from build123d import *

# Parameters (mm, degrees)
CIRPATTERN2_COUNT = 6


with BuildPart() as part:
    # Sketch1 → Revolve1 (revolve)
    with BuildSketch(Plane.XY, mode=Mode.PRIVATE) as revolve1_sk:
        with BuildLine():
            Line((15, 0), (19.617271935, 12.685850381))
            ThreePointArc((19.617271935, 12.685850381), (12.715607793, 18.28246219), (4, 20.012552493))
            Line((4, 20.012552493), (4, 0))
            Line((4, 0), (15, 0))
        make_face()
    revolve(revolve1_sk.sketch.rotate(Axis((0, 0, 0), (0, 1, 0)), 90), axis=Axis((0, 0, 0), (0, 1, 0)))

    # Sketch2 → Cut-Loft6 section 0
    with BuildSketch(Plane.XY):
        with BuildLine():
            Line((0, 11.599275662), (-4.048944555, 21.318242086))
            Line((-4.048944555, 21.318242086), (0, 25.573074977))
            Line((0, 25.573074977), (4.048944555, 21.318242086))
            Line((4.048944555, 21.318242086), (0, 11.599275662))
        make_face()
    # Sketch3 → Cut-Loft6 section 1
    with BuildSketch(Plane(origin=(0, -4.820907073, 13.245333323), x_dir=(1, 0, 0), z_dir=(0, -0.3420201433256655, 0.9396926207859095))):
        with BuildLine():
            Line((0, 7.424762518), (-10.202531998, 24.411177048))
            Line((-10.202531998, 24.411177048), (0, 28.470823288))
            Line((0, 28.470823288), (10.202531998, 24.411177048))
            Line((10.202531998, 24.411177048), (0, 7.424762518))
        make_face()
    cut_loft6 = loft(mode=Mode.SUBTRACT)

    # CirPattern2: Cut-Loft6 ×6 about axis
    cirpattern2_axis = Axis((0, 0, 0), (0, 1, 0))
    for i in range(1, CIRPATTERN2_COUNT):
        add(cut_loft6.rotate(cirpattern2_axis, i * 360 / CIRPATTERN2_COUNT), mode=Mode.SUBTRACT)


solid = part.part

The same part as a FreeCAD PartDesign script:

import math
import FreeCAD as App
import Part
import Sketcher
from FreeCAD import Vector
Q = App.Units.Quantity

doc = App.newDocument("Part")
body = doc.addObject("PartDesign::Body", "Body")

# Sketch on XY plane
sketch1 = doc.addObject("Sketcher::SketchObject", "Sketch")
body.addObject(sketch1)
sketch1.AttachmentSupport = (doc.XY_Plane, [""])
sketch1.MapMode = "FlatFace"
sketch1.addGeometry(Part.LineSegment(Vector(15, 0, 0), Vector(20, 13, 0)), False)
sketch1.addGeometry(Part.ArcOfCircle(Part.Circle(Vector(5, 2, 0), Vector(0, 0, 1), 18), math.radians(37), math.radians(93)), False)
sketch1.addGeometry(Part.LineSegment(Vector(4, 20, 0), Vector(4, 0, 0)), False)
sketch1.addGeometry(Part.LineSegment(Vector(4, 0, 0), Vector(15, 0, 0)), False)
sketch1.addConstraint(Sketcher.Constraint("Coincident", 0, 2, 1, 1))
sketch1.addConstraint(Sketcher.Constraint("Coincident", 1, 2, 2, 1))
sketch1.addConstraint(Sketcher.Constraint("Coincident", 2, 2, 3, 1))
sketch1.addConstraint(Sketcher.Constraint("Coincident", 3, 2, 0, 1))
sketch1.addConstraint(Sketcher.Constraint("Vertical", 2))
sketch1.addConstraint(Sketcher.Constraint("Horizontal", 3))
sketch1.addConstraint(Sketcher.Constraint("PointOnObject", 2, 2, -1))
sketch1.addConstraint(Sketcher.Constraint("DistanceX", 3, 1, 3, 2, 11.0))
sketch1.addConstraint(Sketcher.Constraint("Angle", 0, Q("70 deg")))
sketch1.addConstraint(Sketcher.Constraint("DistanceX", -1, 1, 1, 2, 4.0))
sketch1.addConstraint(Sketcher.Constraint("Distance", 0, 13.5))
sketch1.addConstraint(Sketcher.Constraint("Radius", 1, 18.486848))
sketch1.addConstraint(Sketcher.Constraint("DistanceX", -1, 1, 1, 3, 4.863799))
revolution = doc.addObject("PartDesign::Revolution", "Revolution")
body.addObject(revolution)
revolution.Profile = sketch1
revolution.ReferenceAxis = (sketch1, ["V_Axis"])
revolution.Angle = 360

# Sketch on XY plane
sketch2 = doc.addObject("Sketcher::SketchObject", "Sketch001")
body.addObject(sketch2)
sketch2.AttachmentSupport = (doc.XY_Plane, [""])
sketch2.MapMode = "FlatFace"
sketch2.addGeometry(Part.LineSegment(Vector(-4, 21, 0), Vector(0, 12, 0)), False)
sketch2.addGeometry(Part.LineSegment(Vector(0, 12, 0), Vector(4, 21, 0)), False)
sketch2.addGeometry(Part.LineSegment(Vector(4, 21, 0), Vector(0, 26, 0)), False)
sketch2.addGeometry(Part.LineSegment(Vector(0, 26, 0), Vector(-4, 21, 0)), False)
sketch2.addConstraint(Sketcher.Constraint("Coincident", 0, 2, 1, 1))
sketch2.addConstraint(Sketcher.Constraint("Coincident", 1, 2, 2, 1))
sketch2.addConstraint(Sketcher.Constraint("Coincident", 2, 2, 3, 1))
sketch2.addConstraint(Sketcher.Constraint("Coincident", 3, 2, 0, 1))
sketch2.addConstraint(Sketcher.Constraint("Symmetric", 1, 2, 3, 2, -2))
sketch2.addConstraint(Sketcher.Constraint("PointOnObject", 0, 2, -2))
sketch2.addConstraint(Sketcher.Constraint("PointOnObject", 2, 2, -2))
sketch2.addConstraint(Sketcher.Constraint("DistanceY", 0, 2, 2, 2, 13.973799))
sketch2.addConstraint(Sketcher.Constraint("Distance", 0, 10.52864))
sketch2.addConstraint(Sketcher.Constraint("Distance", 2, 5.873462))
sketch2.addConstraint(Sketcher.Constraint("DistanceY", -1, 1, 0, 2, 11.599276))

# Sketch on an angled plane
sketch3 = doc.addObject("Sketcher::SketchObject", "Sketch002")
body.addObject(sketch3)
sketch3.Placement = App.Placement(Vector(0, -4.820907, 13.245333), App.Rotation(Vector(1, 0, 0), Vector(0, 0.939692621, 0.342020143), Vector(0, -0.342020143, 0.939692621), "ZXY"))
sketch3.addGeometry(Part.LineSegment(Vector(-10, 24, 0), Vector(0, 7, 0)), False)
sketch3.addGeometry(Part.LineSegment(Vector(0, 7, 0), Vector(10, 24, 0)), False)
sketch3.addGeometry(Part.LineSegment(Vector(10, 24, 0), Vector(0, 28, 0)), False)
sketch3.addGeometry(Part.LineSegment(Vector(0, 28, 0), Vector(-10, 24, 0)), False)
sketch3.addConstraint(Sketcher.Constraint("Coincident", 0, 2, 1, 1))
sketch3.addConstraint(Sketcher.Constraint("Coincident", 1, 2, 2, 1))
sketch3.addConstraint(Sketcher.Constraint("Coincident", 2, 2, 3, 1))
sketch3.addConstraint(Sketcher.Constraint("Coincident", 3, 2, 0, 1))
sketch3.addConstraint(Sketcher.Constraint("Symmetric", 1, 2, 3, 2, -2))
sketch3.addConstraint(Sketcher.Constraint("PointOnObject", 0, 2, -2))
sketch3.addConstraint(Sketcher.Constraint("PointOnObject", 2, 2, -2))
sketch3.addConstraint(Sketcher.Constraint("Distance", 0, 19.814892))
sketch3.addConstraint(Sketcher.Constraint("DistanceX", -1, 1, 1, 2, 10.202532))
sketch3.addConstraint(Sketcher.Constraint("DistanceY", 0, 2, 2, 2, 21.046061))
sketch3.addConstraint(Sketcher.Constraint("DistanceY", -1, 1, 0, 2, 7.424763))

subtractiveloft = doc.addObject("PartDesign::SubtractiveLoft", "SubtractiveLoft")
body.addObject(subtractiveloft)
subtractiveloft.Profile = sketch2
subtractiveloft.Sections = [sketch3]
doc.recompute()

polarpattern = doc.addObject("PartDesign::PolarPattern", "PolarPattern")
body.addObject(polarpattern)
polarpattern.Originals = [subtractiveloft]
polarpattern.Axis = (doc.Y_Axis, [""])
polarpattern.Angle = 360
polarpattern.Occurrences = 6
body.Tip = polarpattern

doc.recompute()
